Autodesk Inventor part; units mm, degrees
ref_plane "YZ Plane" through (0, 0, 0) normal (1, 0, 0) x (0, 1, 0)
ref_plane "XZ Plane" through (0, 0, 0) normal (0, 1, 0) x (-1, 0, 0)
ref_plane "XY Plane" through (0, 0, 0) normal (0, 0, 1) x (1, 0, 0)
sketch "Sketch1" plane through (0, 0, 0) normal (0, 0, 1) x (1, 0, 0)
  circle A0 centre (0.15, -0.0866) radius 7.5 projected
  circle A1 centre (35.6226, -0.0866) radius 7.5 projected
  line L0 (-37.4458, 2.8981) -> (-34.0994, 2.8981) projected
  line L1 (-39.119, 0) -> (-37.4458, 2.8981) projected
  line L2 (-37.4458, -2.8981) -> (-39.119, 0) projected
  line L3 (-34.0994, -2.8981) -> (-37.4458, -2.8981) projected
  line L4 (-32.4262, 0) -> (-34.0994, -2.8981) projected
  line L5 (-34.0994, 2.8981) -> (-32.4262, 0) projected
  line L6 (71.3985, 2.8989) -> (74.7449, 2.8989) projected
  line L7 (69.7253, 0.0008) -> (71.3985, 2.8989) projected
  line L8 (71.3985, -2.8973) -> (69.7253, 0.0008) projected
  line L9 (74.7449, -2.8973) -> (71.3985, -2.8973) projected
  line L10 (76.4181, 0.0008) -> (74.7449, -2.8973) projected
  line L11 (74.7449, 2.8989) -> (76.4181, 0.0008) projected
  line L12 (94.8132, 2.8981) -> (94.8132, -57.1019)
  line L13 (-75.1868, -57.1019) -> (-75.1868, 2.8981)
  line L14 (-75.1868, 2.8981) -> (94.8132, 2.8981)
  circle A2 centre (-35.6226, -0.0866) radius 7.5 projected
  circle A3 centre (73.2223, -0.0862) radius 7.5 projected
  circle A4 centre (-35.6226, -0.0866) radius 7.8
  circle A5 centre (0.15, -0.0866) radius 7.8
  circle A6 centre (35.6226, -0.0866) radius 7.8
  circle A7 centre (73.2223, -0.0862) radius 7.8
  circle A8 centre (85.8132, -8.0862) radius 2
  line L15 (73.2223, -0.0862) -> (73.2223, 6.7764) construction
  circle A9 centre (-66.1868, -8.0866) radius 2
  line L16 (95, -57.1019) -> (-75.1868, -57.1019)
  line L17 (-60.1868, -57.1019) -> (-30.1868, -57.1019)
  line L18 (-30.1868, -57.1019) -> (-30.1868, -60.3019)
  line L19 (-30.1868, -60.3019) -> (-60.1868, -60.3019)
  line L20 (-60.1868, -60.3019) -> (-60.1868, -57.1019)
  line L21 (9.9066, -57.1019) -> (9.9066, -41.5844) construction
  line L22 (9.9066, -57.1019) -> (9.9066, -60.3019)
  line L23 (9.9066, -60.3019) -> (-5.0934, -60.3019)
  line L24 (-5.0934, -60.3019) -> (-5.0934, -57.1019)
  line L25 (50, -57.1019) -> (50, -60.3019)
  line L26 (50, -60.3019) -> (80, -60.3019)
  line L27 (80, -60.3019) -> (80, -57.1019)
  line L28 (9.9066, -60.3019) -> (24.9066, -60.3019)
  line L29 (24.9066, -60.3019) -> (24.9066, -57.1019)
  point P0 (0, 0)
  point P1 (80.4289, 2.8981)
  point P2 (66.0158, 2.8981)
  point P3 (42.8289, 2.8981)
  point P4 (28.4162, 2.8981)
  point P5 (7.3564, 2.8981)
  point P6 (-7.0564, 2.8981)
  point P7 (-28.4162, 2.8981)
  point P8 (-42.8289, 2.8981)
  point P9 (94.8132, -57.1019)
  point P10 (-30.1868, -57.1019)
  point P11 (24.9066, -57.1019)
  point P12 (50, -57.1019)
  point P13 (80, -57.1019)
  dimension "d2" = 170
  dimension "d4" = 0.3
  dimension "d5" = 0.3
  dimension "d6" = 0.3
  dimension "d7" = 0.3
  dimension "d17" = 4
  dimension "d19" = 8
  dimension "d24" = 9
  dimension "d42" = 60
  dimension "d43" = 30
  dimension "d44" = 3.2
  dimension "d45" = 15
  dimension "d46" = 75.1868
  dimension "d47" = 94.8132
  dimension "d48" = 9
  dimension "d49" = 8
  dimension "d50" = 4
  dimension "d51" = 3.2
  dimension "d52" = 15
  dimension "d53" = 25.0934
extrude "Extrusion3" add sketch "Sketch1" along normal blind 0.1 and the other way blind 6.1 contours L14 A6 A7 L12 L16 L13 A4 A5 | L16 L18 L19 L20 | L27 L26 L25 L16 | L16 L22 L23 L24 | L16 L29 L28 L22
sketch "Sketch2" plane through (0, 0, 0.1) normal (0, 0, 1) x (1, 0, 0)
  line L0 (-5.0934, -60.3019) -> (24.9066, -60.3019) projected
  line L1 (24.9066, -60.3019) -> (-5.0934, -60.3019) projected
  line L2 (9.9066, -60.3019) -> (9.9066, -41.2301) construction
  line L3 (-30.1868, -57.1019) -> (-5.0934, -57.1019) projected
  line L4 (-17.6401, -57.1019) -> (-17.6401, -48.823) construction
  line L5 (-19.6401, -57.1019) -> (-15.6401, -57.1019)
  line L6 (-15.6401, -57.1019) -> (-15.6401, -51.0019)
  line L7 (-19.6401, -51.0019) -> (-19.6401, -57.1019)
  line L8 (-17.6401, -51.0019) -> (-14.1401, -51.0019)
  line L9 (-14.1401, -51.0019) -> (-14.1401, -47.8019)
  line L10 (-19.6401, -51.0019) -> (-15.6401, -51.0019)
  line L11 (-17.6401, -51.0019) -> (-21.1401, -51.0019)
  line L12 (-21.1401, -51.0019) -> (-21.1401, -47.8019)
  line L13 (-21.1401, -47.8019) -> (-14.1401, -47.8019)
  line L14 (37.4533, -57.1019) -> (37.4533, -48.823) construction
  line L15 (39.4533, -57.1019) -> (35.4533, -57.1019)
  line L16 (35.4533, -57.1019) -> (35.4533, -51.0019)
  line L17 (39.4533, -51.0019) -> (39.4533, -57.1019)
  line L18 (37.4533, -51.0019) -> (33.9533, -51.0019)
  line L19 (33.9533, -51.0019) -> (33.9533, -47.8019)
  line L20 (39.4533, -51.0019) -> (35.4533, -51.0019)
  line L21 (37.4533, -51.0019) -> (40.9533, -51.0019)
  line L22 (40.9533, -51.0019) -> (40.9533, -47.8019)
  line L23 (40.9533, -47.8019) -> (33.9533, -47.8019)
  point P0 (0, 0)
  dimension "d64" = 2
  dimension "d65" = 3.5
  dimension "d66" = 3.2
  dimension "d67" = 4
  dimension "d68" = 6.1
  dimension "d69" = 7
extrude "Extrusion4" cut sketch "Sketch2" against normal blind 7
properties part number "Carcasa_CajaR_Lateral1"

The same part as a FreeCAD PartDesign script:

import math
import FreeCAD as App
import Part
import Sketcher
Q = App.Units.Quantity


def add_polygon(sketch, points):
    """Adds a closed chain of lines whose ends are joined by coincident constraints."""
    first, n = sketch.GeometryCount, len(points)
    for a, b in zip(points, points[1:] + points[:1]):
        sketch.addGeometry(Part.LineSegment(App.Vector(*a, 0), App.Vector(*b, 0)), False)
    for i in range(n):
        sketch.addConstraint(Sketcher.Constraint("Coincident", first + i, 2, first + (i + 1) % n, 1))

doc = App.newDocument("Part")
body = doc.addObject("PartDesign::Body", "Body")

# Sketch on XY plane
sketch1 = body.newObject("Sketcher::SketchObject", "Sketch")
sketch1.AttachmentSupport = (doc.getObject("XY_Plane"), [""])
sketch1.MapMode = "FlatFace"
sketch1.addGeometry([
    Part.LineSegment(App.Vector(28.4, 2.9, 0), App.Vector(7.4, 2.9, 0)),  # 0
    Part.ArcOfCircle(Part.Circle(App.Vector(0.1, -0.1, 0), App.Vector(0, 0, 1), 7.8), math.radians(158), math.radians(382)),  # 1
    Part.LineSegment(App.Vector(-7.1, 2.9, 0), App.Vector(-28.4, 2.9, 0)),  # 2
    Part.ArcOfCircle(Part.Circle(App.Vector(-35.6, -0.1, 0), App.Vector(0, 0, 1), 7.8), math.radians(158), math.radians(382)),  # 3
    Part.LineSegment(App.Vector(-42.8, 2.9, 0), App.Vector(-75.2, 2.9, 0)),  # 4
    Part.LineSegment(App.Vector(-75.2, 2.9, 0), App.Vector(-75.2, -57.1, 0)),  # 5
    Part.LineSegment(App.Vector(-75.2, -57.1, 0), App.Vector(-60.2, -57.1, 0)),  # 6
    Part.LineSegment(App.Vector(-60.2, -57.1, 0), App.Vector(-60.2, -60.3, 0)),  # 7
    Part.LineSegment(App.Vector(-60.2, -60.3, 0), App.Vector(-30.2, -60.3, 0)),  # 8
    Part.LineSegment(App.Vector(-30.2, -60.3, 0), App.Vector(-30.2, -57.1, 0)),  # 9
    Part.LineSegment(App.Vector(-30.2, -57.1, 0), App.Vector(-5.1, -57.1, 0)),  # 10
    Part.LineSegment(App.Vector(-5.1, -57.1, 0), App.Vector(-5.1, -60.3, 0)),  # 11
    Part.LineSegment(App.Vector(-5.1, -60.3, 0), App.Vector(24.9, -60.3, 0)),  # 12
    Part.LineSegment(App.Vector(24.9, -60.3, 0), App.Vector(24.9, -57.1, 0)),  # 13
    Part.LineSegment(App.Vector(24.9, -57.1, 0), App.Vector(50, -57.1, 0)),  # 14
    Part.LineSegment(App.Vector(50, -57.1, 0), App.Vector(50, -60.3, 0)),  # 15
    Part.LineSegment(App.Vector(50, -60.3, 0), App.Vector(80, -60.3, 0)),  # 16
    Part.LineSegment(App.Vector(80, -60.3, 0), App.Vector(80, -57.1, 0)),  # 17
    Part.LineSegment(App.Vector(80, -57.1, 0), App.Vector(94.8, -57.1, 0)),  # 18
    Part.LineSegment(App.Vector(94.8, -57.1, 0), App.Vector(94.8, 2.9, 0)),  # 19
    Part.LineSegment(App.Vector(94.8, 2.9, 0), App.Vector(80.4, 2.9, 0)),  # 20
    Part.ArcOfCircle(Part.Circle(App.Vector(73.2, -0.1, 0), App.Vector(0, 0, 1), 7.8), math.radians(158), math.radians(382)),  # 21
    Part.LineSegment(App.Vector(66, 2.9, 0), App.Vector(42.8, 2.9, 0)),  # 22
    Part.ArcOfCircle(Part.Circle(App.Vector(35.6, -0.1, 0), App.Vector(0, 0, 1), 7.8), math.radians(158), math.radians(382)),  # 23
    Part.Circle(App.Vector(-66.2, -8.1, 0), App.Vector(0, 0, 1), 2),  # 24
    Part.Circle(App.Vector(85.8, -8.1, 0), App.Vector(0, 0, 1), 2),  # 25
], False)
sketch1.addConstraint([
    Sketcher.Constraint("Coincident", 0, 2, 1, 2),
    Sketcher.Constraint("Coincident", 1, 1, 2, 1),
    Sketcher.Constraint("Coincident", 2, 2, 3, 2),
    Sketcher.Constraint("Coincident", 3, 1, 4, 1),
    Sketcher.Constraint("Coincident", 4, 2, 5, 1),
    Sketcher.Constraint("Coincident", 5, 2, 6, 1),
    Sketcher.Constraint("Coincident", 6, 2, 7, 1),
    Sketcher.Constraint("Coincident", 7, 2, 8, 1),
    Sketcher.Constraint("Coincident", 8, 2, 9, 1),
    Sketcher.Constraint("Coincident", 9, 2, 10, 1),
    Sketcher.Constraint("Coincident", 10, 2, 11, 1),
    Sketcher.Constraint("Coincident", 11, 2, 12, 1),
    Sketcher.Constraint("Coincident", 12, 2, 13, 1),
    Sketcher.Constraint("Coincident", 13, 2, 14, 1),
    Sketcher.Constraint("Coincident", 14, 2, 15, 1),
    Sketcher.Constraint("Coincident", 15, 2, 16, 1),
    Sketcher.Constraint("Coincident", 16, 2, 17, 1),
    Sketcher.Constraint("Coincident", 17, 2, 18, 1),
    Sketcher.Constraint("Coincident", 18, 2, 19, 1),
    Sketcher.Constraint("Coincident", 19, 2, 20, 1),
    Sketcher.Constraint("Coincident", 20, 2, 21, 2),
    Sketcher.Constraint("Coincident", 21, 1, 22, 1),
    Sketcher.Constraint("Coincident", 22, 2, 23, 2),
    Sketcher.Constraint("Coincident", 23, 1, 0, 1),
    Sketcher.Constraint("Horizontal", 0),
    Sketcher.Constraint("Horizontal", 2),
    Sketcher.Constraint("Horizontal", 4),
    Sketcher.Constraint("Vertical", 5),
    Sketcher.Constraint("Horizontal", 6),
    Sketcher.Constraint("Vertical", 7),
    Sketcher.Constraint("Horizontal", 8),
    Sketcher.Constraint("Vertical", 9),
    Sketcher.Constraint("Horizontal", 10),
    Sketcher.Constraint("Vertical", 11),
    Sketcher.Constraint("Horizontal", 12),
    Sketcher.Constraint("Vertical", 13),
    Sketcher.Constraint("Horizontal", 14),
    Sketcher.Constraint("Vertical", 15),
    Sketcher.Constraint("Horizontal", 16),
    Sketcher.Constraint("Vertical", 17),
    Sketcher.Constraint("Horizontal", 18),
    Sketcher.Constraint("Vertical", 19),
    Sketcher.Constraint("Horizontal", 20),
    Sketcher.Constraint("Horizontal", 22),
    Sketcher.Constraint("Equal", 1, 3),
    Sketcher.Constraint("Equal", 3, 21),
    Sketcher.Constraint("Equal", 21, 23),
    Sketcher.Constraint("Equal", 24, 25),
    Sketcher.Constraint("Symmetric", 3, 3, 23, 3, -2),
    Sketcher.Constraint("Horizontal", 1, 3, 3, 3),
    Sketcher.Constraint("Horizontal", 0, 2, 1, 1),
    Sketcher.Constraint("Horizontal", 2, 2, 3, 1),
    Sketcher.Constraint("Horizontal", 6, 2, 9, 2),
    Sketcher.Constraint("Horizontal", 8, 2, 11, 2),
    Sketcher.Constraint("Horizontal", 10, 2, 13, 2),
    Sketcher.Constraint("Horizontal", 12, 2, 15, 2),
    Sketcher.Constraint("Horizontal", 14, 2, 17, 2),
    Sketcher.Constraint("Horizontal", 4, 2, 19, 2),
    Sketcher.Constraint("Horizontal", 20, 2, 21, 1),
    Sketcher.Constraint("Equal", 8, 12),
    Sketcher.Constraint("Equal", 10, 14),
    Sketcher.Constraint("Equal", 12, 16),
    Sketcher.Constraint("Diameter", 24, Q("4 mm")),
    Sketcher.Constraint("DistanceX", 6, 1, 6, 2, Q("15 mm")),
    Sketcher.Constraint("DistanceX", 8, 1, 8, 2, Q("30 mm")),
    Sketcher.Constraint("DistanceY", 5, 2, 5, 1, Q("60 mm")),
    Sketcher.Constraint("DistanceY", 7, 2, 7, 1, Q("3.2 mm")),
    Sketcher.Constraint("DistanceY", 24, 3, 3, 3, Q("8 mm")),
    Sketcher.Constraint("DistanceY", 25, 3, 21, 3, Q("8 mm")),
    Sketcher.Constraint("DistanceX", 4, 2, 24, 3, Q("9 mm")),
    Sketcher.Constraint("DistanceX", 25, 3, 18, 2, Q("9 mm")),
    Sketcher.Constraint("Radius", 1, Q("7.8 mm")),
    Sketcher.Constraint("DistanceX", 10, 1, 10, 2, Q("25.0934 mm")),
    Sketcher.Constraint("DistanceX", -1, 1, 14, 2, Q("50 mm")),
    Sketcher.Constraint("DistanceX", 24, 3, 25, 3, Q("152 mm")),
    Sketcher.Constraint("DistanceX", 0, 2, 0, 1, Q("21.06 mm")),
    Sketcher.Constraint("DistanceX", 2, 2, 2, 1, Q("21.36 mm")),
    Sketcher.Constraint("DistanceY", 24, 3, 21, 3, Q("8.0004 mm")),
    Sketcher.Constraint("DistanceX", 4, 2, 4, 1, Q("32.3578 mm")),
    Sketcher.Constraint("DistanceX", 20, 2, 20, 1, Q("14.3844 mm")),
    Sketcher.Constraint("DistanceY", -1, 1, 0, 2, Q("2.898 mm")),
])
pad1 = body.newObject("PartDesign::Pad", "Pad")
pad1.Profile = sketch1
pad1.Type = "TwoLengths"
pad1.Length = 0.1
pad1.Length2 = 6.1

# Sketch on XY plane
sketch2 = body.newObject("Sketcher::SketchObject", "Sketch001")
sketch2.AttachmentSupport = (doc.getObject("XY_Plane"), [""])
sketch2.MapMode = "FlatFace"
sketch2.AttachmentOffset = App.Placement(App.Vector(0, 0, 0.1), App.Rotation())
add_polygon(sketch2, [(-19.6, -51), (-19.6, -57.1), (-15.6, -57.1), (-15.6, -51), (-14.1, -51), (-14.1, -47.8), (-21.1, -47.8), (-21.1, -51)])  # lines 0-7
add_polygon(sketch2, [(35.5, -57.1), (39.5, -57.1), (39.5, -51), (41, -51), (41, -47.8), (34, -47.8), (34, -51), (35.5, -51)])  # lines 8-15
sketch2.addConstraint([
    Sketcher.Constraint("Vertical", 0),
    Sketcher.Constraint("Horizontal", 1),
    Sketcher.Constraint("Vertical", 2),
    Sketcher.Constraint("Horizontal", 3),
    Sketcher.Constraint("Vertical", 4),
    Sketcher.Constraint("Horizontal", 5),
    Sketcher.Constraint("Vertical", 6),
    Sketcher.Constraint("Horizontal", 7),
    Sketcher.Constraint("Horizontal", 8),
    Sketcher.Constraint("Vertical", 9),
    Sketcher.Constraint("Horizontal", 10),
    Sketcher.Constraint("Vertical", 11),
    Sketcher.Constraint("Horizontal", 12),
    Sketcher.Constraint("Vertical", 13),
    Sketcher.Constraint("Horizontal", 14),
    Sketcher.Constraint("Vertical", 15),
    Sketcher.Constraint("Horizontal", 3, 2, 6, 2),
    Sketcher.Constraint("Horizontal", 1, 2, 8, 2),
    Sketcher.Constraint("Horizontal", 7, 2, 9, 2),
    Sketcher.Constraint("Horizontal", 5, 2, 11, 2),
    Sketcher.Constraint("Horizontal", 10, 2, 13, 2),
    Sketcher.Constraint("Equal", 3, 7),
    Sketcher.Constraint("Equal", 1, 8),
    Sketcher.Constraint("Equal", 7, 10),
    Sketcher.Constraint("Equal", 5, 12),
    Sketcher.Constraint("DistanceX", 1, 1, 1, 2, Q("4 mm")),
    Sketcher.Constraint("DistanceX", 5, 2, 5, 1, Q("7 mm")),
    Sketcher.Constraint("DistanceY", 0, 2, 0, 1, Q("6.1 mm")),
    Sketcher.Constraint("DistanceY", 4, 1, 4, 2, Q("3.2 mm")),
    Sketcher.Constraint("DistanceX", 0, 2, -1, 1, Q("19.64 mm")),
    Sketcher.Constraint("DistanceY", 0, 2, -1, 1, Q("57.102 mm")),
    Sketcher.Constraint("DistanceX", -1, 1, 8, 2, Q("39.4533 mm")),
])
pocket1 = body.newObject("PartDesign::Pocket", "Pocket")
pocket1.Profile = sketch2
pocket1.Length = 7

doc.recompute()
